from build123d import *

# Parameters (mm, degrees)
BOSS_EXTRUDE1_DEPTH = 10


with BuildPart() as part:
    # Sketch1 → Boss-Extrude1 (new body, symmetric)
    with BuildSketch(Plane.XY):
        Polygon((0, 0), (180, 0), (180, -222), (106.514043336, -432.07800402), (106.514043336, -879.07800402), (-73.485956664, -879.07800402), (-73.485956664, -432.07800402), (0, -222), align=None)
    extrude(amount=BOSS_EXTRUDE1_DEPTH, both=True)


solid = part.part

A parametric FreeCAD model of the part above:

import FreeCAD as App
import Part
import Sketcher
Q = App.Units.Quantity

doc = App.newDocument("Part")
body = doc.addObject("PartDesign::Body", "Body")

# Sketch on XY plane
sketch1 = body.newObject("Sketcher::SketchObject", "Sketch")
sketch1.AttachmentSupport = (doc.getObject("XY_Plane"), [""])
sketch1.MapMode = "FlatFace"
sketch1.addGeometry(Part.LineSegment(App.Vector(180, 0, 0), App.Vector(0, 0, 0)), False)
sketch1.addGeometry(Part.LineSegment(App.Vector(0, 0, 0), App.Vector(0, -222, 0)), False)
sketch1.addGeometry(Part.LineSegment(App.Vector(0, -222, 0), App.Vector(-73, -432, 0)), False)
sketch1.addGeometry(Part.LineSegment(App.Vector(-73, -432, 0), App.Vector(-73, -879, 0)), False)
sketch1.addGeometry(Part.LineSegment(App.Vector(-73, -879, 0), App.Vector(107, -879, 0)), False)
sketch1.addGeometry(Part.LineSegment(App.Vector(107, -879, 0), App.Vector(107, -432, 0)), False)
sketch1.addGeometry(Part.LineSegment(App.Vector(107, -432, 0), App.Vector(180, -222, 0)), False)
sketch1.addGeometry(Part.LineSegment(App.Vector(180, -222, 0), App.Vector(180, 0, 0)), False)
sketch1.addConstraint(Sketcher.Constraint("Coincident", 0, 2, 1, 1))
sketch1.addConstraint(Sketcher.Constraint("Coincident", 1, 2, 2, 1))
sketch1.addConstraint(Sketcher.Constraint("Coincident", 2, 2, 3, 1))
sketch1.addConstraint(Sketcher.Constraint("Coincident", 3, 2, 4, 1))
sketch1.addConstraint(Sketcher.Constraint("Coincident", 4, 2, 5, 1))
sketch1.addConstraint(Sketcher.Constraint("Coincident", 5, 2, 6, 1))
sketch1.addConstraint(Sketcher.Constraint("Coincident", 6, 2, 7, 1))
sketch1.addConstraint(Sketcher.Constraint("Coincident", 7, 2, 0, 1))
sketch1.addConstraint(Sketcher.Constraint("Horizontal", 0))
sketch1.addConstraint(Sketcher.Constraint("Vertical", 1))
sketch1.addConstraint(Sketcher.Constraint("Vertical", 3))
sketch1.addConstraint(Sketcher.Constraint("Horizontal", 4))
sketch1.addConstraint(Sketcher.Constraint("Vertical", 5))
sketch1.addConstraint(Sketcher.Constraint("Vertical", 7))
sketch1.addConstraint(Sketcher.Constraint("Coincident", 0, 2, -1, 1))
sketch1.addConstraint(Sketcher.Constraint("Parallel", 2, 6))
sketch1.addConstraint(Sketcher.Constraint("Horizontal", 2, 2, 5, 2))
sketch1.addConstraint(Sketcher.Constraint("Horizontal", 1, 2, 6, 2))
sketch1.addConstraint(Sketcher.Constraint("DistanceX", 0, 2, 0, 1, 180.0))
sketch1.addConstraint(Sketcher.Constraint("DistanceY", 1, 2, 1, 1, 222.0))
sketch1.addConstraint(Sketcher.Constraint("DistanceY", 3, 2, 3, 1, 447.0))
sketch1.addConstraint(Sketcher.Constraint("Angle", 2, Q("-109.28 deg")))
sketch1.addConstraint(Sketcher.Constraint("Distance", 2, 222.56))
pad1 = body.newObject("PartDesign::Pad", "Pad")
pad1.Profile = sketch1
pad1.Length = 20
pad1.Midplane = True

doc.recompute()
